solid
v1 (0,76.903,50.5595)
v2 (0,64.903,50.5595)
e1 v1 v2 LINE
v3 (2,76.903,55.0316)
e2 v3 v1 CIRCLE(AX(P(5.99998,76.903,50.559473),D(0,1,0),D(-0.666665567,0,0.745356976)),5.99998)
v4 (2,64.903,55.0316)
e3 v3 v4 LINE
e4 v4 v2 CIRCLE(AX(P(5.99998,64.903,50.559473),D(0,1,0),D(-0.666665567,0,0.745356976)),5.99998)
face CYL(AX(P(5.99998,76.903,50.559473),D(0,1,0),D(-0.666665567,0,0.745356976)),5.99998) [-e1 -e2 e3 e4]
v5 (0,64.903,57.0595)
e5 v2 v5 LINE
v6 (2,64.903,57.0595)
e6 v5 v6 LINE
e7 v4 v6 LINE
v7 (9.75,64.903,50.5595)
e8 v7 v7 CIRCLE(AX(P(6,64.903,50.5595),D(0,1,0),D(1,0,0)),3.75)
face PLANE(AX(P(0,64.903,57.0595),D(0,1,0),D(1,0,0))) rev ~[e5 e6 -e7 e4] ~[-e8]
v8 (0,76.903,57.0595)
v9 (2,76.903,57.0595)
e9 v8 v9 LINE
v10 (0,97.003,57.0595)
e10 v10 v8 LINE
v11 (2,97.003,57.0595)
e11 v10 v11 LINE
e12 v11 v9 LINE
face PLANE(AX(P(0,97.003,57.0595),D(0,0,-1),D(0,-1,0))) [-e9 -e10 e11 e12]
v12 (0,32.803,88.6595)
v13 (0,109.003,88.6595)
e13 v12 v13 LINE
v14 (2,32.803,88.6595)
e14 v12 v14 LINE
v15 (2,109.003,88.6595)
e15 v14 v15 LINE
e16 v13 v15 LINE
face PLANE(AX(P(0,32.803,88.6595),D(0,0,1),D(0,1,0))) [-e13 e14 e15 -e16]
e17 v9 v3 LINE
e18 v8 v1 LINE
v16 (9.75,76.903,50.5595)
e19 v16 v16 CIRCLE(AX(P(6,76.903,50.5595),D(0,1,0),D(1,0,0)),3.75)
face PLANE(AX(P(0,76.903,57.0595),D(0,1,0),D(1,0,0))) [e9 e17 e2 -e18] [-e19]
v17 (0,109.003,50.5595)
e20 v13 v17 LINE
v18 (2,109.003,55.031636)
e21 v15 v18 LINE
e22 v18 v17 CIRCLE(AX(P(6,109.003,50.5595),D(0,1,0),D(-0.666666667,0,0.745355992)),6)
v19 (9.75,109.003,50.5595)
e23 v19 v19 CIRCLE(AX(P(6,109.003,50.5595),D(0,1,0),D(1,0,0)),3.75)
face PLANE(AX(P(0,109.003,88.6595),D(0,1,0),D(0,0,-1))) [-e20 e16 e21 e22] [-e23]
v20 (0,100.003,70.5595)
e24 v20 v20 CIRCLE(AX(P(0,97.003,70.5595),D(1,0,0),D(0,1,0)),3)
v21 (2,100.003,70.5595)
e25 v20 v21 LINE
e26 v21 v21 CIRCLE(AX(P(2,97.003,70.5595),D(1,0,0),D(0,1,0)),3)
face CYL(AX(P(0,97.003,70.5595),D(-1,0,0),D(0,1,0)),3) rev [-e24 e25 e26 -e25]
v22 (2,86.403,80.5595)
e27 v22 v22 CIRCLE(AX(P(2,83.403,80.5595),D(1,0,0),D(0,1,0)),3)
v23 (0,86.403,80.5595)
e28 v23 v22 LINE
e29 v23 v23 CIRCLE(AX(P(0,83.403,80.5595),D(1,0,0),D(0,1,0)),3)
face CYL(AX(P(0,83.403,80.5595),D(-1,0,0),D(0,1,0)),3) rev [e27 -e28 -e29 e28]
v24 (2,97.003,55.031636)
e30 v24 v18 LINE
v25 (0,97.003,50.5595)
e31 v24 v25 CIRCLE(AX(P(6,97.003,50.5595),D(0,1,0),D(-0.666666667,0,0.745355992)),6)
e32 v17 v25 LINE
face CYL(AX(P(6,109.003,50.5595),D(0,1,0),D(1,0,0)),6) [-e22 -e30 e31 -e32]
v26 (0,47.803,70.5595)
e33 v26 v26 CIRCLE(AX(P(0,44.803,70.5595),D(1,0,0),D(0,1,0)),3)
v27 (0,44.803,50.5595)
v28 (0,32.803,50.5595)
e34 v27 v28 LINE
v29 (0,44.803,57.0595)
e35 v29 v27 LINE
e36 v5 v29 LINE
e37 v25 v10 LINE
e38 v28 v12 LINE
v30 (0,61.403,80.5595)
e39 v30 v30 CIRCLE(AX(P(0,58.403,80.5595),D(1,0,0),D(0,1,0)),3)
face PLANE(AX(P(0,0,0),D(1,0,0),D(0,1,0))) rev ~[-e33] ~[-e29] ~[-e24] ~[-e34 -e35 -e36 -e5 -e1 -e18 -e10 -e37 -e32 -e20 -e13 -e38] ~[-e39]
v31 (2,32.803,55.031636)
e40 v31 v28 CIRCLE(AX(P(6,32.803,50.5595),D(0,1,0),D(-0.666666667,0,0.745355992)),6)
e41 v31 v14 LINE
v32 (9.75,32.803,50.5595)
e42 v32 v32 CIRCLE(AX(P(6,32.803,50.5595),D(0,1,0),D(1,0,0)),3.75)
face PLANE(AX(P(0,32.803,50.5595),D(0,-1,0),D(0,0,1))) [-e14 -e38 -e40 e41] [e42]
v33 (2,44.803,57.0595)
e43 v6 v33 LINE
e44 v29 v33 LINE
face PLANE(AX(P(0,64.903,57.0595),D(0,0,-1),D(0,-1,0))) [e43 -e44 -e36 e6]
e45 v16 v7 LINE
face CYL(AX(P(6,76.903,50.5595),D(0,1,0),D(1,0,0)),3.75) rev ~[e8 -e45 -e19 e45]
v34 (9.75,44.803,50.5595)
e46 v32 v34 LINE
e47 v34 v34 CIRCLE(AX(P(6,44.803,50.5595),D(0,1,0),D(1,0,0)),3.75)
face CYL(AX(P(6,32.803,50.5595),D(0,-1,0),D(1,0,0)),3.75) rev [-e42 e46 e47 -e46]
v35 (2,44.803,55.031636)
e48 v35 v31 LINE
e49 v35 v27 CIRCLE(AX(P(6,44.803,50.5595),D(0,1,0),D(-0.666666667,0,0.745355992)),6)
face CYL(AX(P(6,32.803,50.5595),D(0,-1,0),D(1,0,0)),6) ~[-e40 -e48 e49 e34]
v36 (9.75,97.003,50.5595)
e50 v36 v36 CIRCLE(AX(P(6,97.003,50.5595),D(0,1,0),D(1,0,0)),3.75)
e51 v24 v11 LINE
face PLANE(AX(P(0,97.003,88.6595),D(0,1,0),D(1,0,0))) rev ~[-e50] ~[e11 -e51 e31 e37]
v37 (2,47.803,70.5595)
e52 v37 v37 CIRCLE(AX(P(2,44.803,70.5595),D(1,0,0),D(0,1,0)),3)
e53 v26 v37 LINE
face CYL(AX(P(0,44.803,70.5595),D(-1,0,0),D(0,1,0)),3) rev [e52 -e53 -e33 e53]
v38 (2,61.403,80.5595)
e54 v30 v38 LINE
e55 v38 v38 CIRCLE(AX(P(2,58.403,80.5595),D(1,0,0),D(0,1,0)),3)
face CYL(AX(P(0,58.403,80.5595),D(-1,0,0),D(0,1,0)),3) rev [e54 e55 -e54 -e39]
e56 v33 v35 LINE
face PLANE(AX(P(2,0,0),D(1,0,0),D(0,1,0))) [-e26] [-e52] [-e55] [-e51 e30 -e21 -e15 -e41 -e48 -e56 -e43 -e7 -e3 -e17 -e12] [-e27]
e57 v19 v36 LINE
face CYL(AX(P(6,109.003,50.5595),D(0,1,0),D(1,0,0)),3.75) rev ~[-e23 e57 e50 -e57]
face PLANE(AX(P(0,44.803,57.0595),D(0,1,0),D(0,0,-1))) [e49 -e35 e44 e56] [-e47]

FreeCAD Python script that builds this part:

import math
import FreeCAD as App
import Part
import Sketcher
from FreeCAD import Vector

doc = App.newDocument("Part")
body = doc.addObject("PartDesign::Body", "Body")

# Sketch on YZ plane
sketch1 = body.newObject("Sketcher::SketchObject", "Sketch")
sketch1.AttachmentSupport = (doc.getObject("YZ_Plane"), [""])
sketch1.MapMode = "FlatFace"
sketch1.addGeometry([
    Part.LineSegment(Vector(97.003, 50.5595, 0), Vector(109.003, 50.5595, 0)),  # 0
    Part.LineSegment(Vector(109.003, 50.5595, 0), Vector(109.003, 88.6595, 0)),  # 1
    Part.LineSegment(Vector(109.003, 88.6595, 0), Vector(32.803, 88.6595, 0)),  # 2
    Part.LineSegment(Vector(32.803, 88.6595, 0), Vector(32.803, 50.5595, 0)),  # 3
    Part.LineSegment(Vector(32.803, 50.5595, 0), Vector(44.803, 50.5595, 0)),  # 4
    Part.LineSegment(Vector(44.803, 50.5595, 0), Vector(44.803, 57.0595, 0)),  # 5
    Part.LineSegment(Vector(44.803, 57.0595, 0), Vector(64.903, 57.0595, 0)),  # 6
    Part.LineSegment(Vector(64.903, 57.0595, 0), Vector(64.903, 50.5595, 0)),  # 7
    Part.LineSegment(Vector(64.903, 50.5595, 0), Vector(76.903, 50.5595, 0)),  # 8
    Part.LineSegment(Vector(76.903, 50.5595, 0), Vector(76.903, 57.0595, 0)),  # 9
    Part.LineSegment(Vector(76.903, 57.0595, 0), Vector(97.003, 57.0595, 0)),  # 10
    Part.LineSegment(Vector(97.003, 57.0595, 0), Vector(97.003, 50.5595, 0)),  # 11
    Part.Circle(Vector(44.803, 70.5595, 0), Vector(0, 0, 1), 3),  # 12
    Part.Circle(Vector(58.403, 80.5595, 0), Vector(0, 0, 1), 3),  # 13
    Part.Circle(Vector(97.003, 70.5595, 0), Vector(0, 0, 1), 3),  # 14
    Part.Circle(Vector(83.403, 80.5595, 0), Vector(0, 0, 1), 3),  # 15
], False)
sketch1.addConstraint([
    Sketcher.Constraint("Coincident", 0, 2, 1, 1),
    Sketcher.Constraint("Coincident", 1, 2, 2, 1),
    Sketcher.Constraint("Coincident", 2, 2, 3, 1),
    Sketcher.Constraint("Coincident", 3, 2, 4, 1),
    Sketcher.Constraint("Coincident", 4, 2, 5, 1),
    Sketcher.Constraint("Coincident", 5, 2, 6, 1),
    Sketcher.Constraint("Coincident", 6, 2, 7, 1),
    Sketcher.Constraint("Coincident", 7, 2, 8, 1),
    Sketcher.Constraint("Coincident", 8, 2, 9, 1),
    Sketcher.Constraint("Coincident", 9, 2, 10, 1),
    Sketcher.Constraint("Coincident", 10, 2, 11, 1),
    Sketcher.Constraint("Coincident", 11, 2, 0, 1),
    Sketcher.Constraint("Horizontal", 0),
    Sketcher.Constraint("Vertical", 1),
    Sketcher.Constraint("Horizontal", 2),
    Sketcher.Constraint("Vertical", 3),
    Sketcher.Constraint("Horizontal", 4),
    Sketcher.Constraint("Vertical", 5),
    Sketcher.Constraint("Horizontal", 6),
    Sketcher.Constraint("Vertical", 7),
    Sketcher.Constraint("Horizontal", 8),
    Sketcher.Constraint("Vertical", 9),
    Sketcher.Constraint("Horizontal", 10),
    Sketcher.Constraint("Vertical", 11),
    Sketcher.Constraint("Equal", 12, 13),
    Sketcher.Constraint("Equal", 13, 14),
    Sketcher.Constraint("Equal", 14, 15),
    Sketcher.Constraint("Horizontal", 12, 3, 14, 3),
    Sketcher.Constraint("Horizontal", 13, 3, 15, 3),
    Sketcher.Constraint("Horizontal", 0, 2, 3, 2),
    Sketcher.Constraint("Horizontal", 4, 2, 7, 2),
    Sketcher.Constraint("Horizontal", 6, 2, 9, 2),
    Sketcher.Constraint("Vertical", 12, 3, 4, 2),
    Sketcher.Constraint("Vertical", 14, 3, 10, 2),
    Sketcher.Constraint("Equal", 0, 4),
    Sketcher.Constraint("Equal", 4, 8),
    Sketcher.Constraint("Equal", 6, 10),
    Sketcher.Constraint("Diameter", 12, 6.0),
    Sketcher.Constraint("DistanceX", 0, 1, 0, 2, 12.0),
    Sketcher.Constraint("DistanceX", 2, 2, 2, 1, 76.2),
    Sketcher.Constraint("DistanceY", 1, 1, 1, 2, 38.1),
    Sketcher.Constraint("DistanceY", 5, 1, 5, 2, 6.5),
    Sketcher.Constraint("DistanceY", 0, 2, 14, 3, 20.0),
    Sketcher.Constraint("DistanceY", 0, 2, 15, 3, 30.0),
    Sketcher.Constraint("DistanceX", 13, 3, 6, 2, 6.5),
    Sketcher.Constraint("DistanceX", 8, 2, 15, 3, 6.5),
    Sketcher.Constraint("DistanceX", -1, 1, 12, 3, 44.803),
    Sketcher.Constraint("DistanceY", -1, 1, 12, 3, 70.5595),
])
pad1 = body.newObject("PartDesign::Pad", "Pad")
pad1.Profile = sketch1
pad1.Length = 2

# Sketch on XZ plane
sketch2 = body.newObject("Sketcher::SketchObject", "Sketch001")
sketch2.AttachmentSupport = (doc.getObject("XZ_Plane"), [""])
sketch2.MapMode = "FlatFace"
sketch2.AttachmentOffset = App.Placement(Vector(0, 0, -109.003), App.Rotation())
sketch2.addGeometry([
    Part.Circle(Vector(6, 50.5595, 0), Vector(0, 0, 1), 6),
    Part.Circle(Vector(6, 50.5595, 0), Vector(0, 0, 1), 3.75),
], False)
sketch2.addConstraint([
    Sketcher.Constraint("Coincident", 1, 3, 0, 3),
    Sketcher.Constraint("Diameter", 0, 12.0),
    Sketcher.Constraint("Diameter", 1, 7.5),
    Sketcher.Constraint("DistanceX", -1, 1, 0, 3, 6.0),
    Sketcher.Constraint("DistanceY", -1, 1, 0, 3, 50.5595),
])
pad2 = body.newObject("PartDesign::Pad", "Pad001")
pad2.Profile = sketch2
pad2.Length = 12
doc.recompute()

datumplane = body.newObject("PartDesign::Plane", "DatumPlane")
datumplane.AttachmentSupport = (doc.getObject("XZ_Plane"), [""])
datumplane.MapMode = "FlatFace"
datumplane.AttachmentOffset = App.Placement(Vector(0, 0, -70.903), App.Rotation())
mirrored = body.newObject("PartDesign::Mirrored", "Mirrored")
mirrored.Originals = [pad2]
mirrored.MirrorPlane = (datumplane, [""])
body.Tip = mirrored

# Sketch on XZ plane
sketch3 = body.newObject("Sketcher::SketchObject", "Sketch002")
sketch3.AttachmentSupport = (doc.getObject("XZ_Plane"), [""])
sketch3.MapMode = "FlatFace"
sketch3.AttachmentOffset = App.Placement(Vector(0, 0, -76.903), App.Rotation())
sketch3.addGeometry([
    Part.ArcOfCircle(Part.Circle(Vector(6, 50.5595, 0), Vector(0, 0, 1), 5.999973), math.radians(180), math.radians(491.810544)),
    Part.LineSegment(Vector(0, 50.5595, 0), Vector(2, 50.5595, 0)),
    Part.LineSegment(Vector(2, 50.5595, 0), Vector(2, 55.0316, 0)),
    Part.Circle(Vector(6, 50.5595, 0), Vector(0, 0, 1), 3.75),
], False)
sketch3.addConstraint([
    Sketcher.Constraint("Coincident", 0, 1, 1, 1),
    Sketcher.Constraint("Coincident", 1, 2, 2, 1),
    Sketcher.Constraint("Coincident", 2, 2, 0, 2),
    Sketcher.Constraint("Horizontal", 1),
    Sketcher.Constraint("Vertical", 2),
    Sketcher.Constraint("Coincident", 3, 3, 0, 3),
    Sketcher.Constraint("PointOnObject", 0, 1, -2),
    Sketcher.Constraint("Horizontal", 3, 3, 0, 1),
    Sketcher.Constraint("Radius", 0, 6.0),
    Sketcher.Constraint("Diameter", 3, 7.5),
    Sketcher.Constraint("DistanceX", 1, 1, 1, 2, 2.0),
    Sketcher.Constraint("DistanceY", -1, 1, 0, 3, 50.5595),
])
pad3 = body.newObject("PartDesign::Pad", "Pad002")
pad3.Profile = sketch3
pad3.Length = 12

doc.recompute()
